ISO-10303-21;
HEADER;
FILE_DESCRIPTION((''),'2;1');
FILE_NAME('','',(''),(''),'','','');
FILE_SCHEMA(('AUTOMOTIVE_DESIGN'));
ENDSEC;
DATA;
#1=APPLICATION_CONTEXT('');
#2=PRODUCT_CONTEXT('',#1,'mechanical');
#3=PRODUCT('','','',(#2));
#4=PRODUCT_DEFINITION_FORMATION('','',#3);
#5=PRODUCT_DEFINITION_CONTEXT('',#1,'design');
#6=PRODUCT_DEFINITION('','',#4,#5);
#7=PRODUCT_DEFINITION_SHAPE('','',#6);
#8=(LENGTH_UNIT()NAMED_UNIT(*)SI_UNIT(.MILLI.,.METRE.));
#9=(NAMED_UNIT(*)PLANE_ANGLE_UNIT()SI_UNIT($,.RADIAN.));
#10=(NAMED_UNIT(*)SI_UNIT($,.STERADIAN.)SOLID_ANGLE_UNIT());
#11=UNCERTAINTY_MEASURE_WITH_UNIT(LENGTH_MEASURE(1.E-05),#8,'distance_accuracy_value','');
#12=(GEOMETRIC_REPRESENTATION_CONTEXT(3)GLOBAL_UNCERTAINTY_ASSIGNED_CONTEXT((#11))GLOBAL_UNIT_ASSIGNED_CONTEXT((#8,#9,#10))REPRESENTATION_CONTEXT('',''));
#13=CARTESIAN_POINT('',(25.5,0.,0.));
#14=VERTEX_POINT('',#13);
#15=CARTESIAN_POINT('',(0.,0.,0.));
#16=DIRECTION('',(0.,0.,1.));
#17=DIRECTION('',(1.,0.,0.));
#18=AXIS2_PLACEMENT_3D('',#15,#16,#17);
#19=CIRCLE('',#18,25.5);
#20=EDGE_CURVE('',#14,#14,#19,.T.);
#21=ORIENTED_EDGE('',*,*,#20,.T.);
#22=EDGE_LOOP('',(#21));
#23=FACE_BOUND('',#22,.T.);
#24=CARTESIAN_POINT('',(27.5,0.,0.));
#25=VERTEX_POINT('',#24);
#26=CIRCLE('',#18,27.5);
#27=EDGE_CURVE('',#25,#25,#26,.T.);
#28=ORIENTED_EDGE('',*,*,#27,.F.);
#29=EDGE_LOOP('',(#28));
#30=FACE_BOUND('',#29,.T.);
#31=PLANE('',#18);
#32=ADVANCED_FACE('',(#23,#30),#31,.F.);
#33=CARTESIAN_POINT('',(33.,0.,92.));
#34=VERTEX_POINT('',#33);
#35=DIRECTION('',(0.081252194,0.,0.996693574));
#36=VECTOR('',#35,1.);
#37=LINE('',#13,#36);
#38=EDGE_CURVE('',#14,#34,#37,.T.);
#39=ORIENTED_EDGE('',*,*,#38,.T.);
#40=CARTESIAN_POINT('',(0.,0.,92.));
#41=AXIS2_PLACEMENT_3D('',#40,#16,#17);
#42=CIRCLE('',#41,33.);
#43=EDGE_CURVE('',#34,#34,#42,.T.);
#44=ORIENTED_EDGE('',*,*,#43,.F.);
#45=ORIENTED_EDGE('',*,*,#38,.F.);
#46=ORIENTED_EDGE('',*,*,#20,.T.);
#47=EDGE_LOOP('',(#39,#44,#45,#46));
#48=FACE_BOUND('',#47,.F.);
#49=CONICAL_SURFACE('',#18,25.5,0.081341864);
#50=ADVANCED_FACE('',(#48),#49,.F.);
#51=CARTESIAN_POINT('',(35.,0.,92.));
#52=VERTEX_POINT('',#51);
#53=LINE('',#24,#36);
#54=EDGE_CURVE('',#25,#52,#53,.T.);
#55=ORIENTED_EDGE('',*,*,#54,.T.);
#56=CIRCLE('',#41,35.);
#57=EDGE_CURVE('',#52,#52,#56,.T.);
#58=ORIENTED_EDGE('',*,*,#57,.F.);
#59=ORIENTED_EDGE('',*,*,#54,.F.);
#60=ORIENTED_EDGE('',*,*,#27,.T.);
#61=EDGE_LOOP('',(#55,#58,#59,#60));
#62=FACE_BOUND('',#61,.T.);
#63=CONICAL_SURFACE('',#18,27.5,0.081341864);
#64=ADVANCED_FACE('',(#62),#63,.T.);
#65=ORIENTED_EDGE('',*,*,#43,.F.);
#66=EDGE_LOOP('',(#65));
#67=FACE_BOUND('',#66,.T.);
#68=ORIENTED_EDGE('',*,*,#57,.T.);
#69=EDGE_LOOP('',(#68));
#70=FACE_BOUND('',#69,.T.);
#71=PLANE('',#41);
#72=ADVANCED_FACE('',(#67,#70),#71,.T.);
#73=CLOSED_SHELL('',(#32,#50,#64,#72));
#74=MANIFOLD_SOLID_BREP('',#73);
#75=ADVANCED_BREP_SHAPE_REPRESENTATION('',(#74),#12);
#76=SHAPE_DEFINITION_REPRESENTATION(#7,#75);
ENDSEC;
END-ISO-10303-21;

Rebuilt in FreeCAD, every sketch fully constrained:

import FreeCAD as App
import Part
import Sketcher
Q = App.Units.Quantity

doc = App.newDocument("Part")
body = doc.addObject("PartDesign::Body", "Body")

# Sketch on XZ plane
sketch1 = doc.addObject("Sketcher::SketchObject", "Sketch")
body.addObject(sketch1)
sketch1.AttachmentSupport = (doc.XZ_Plane, [""])
sketch1.MapMode = "FlatFace"
sketch1.addGeometry(Part.LineSegment(App.Vector(0, 0, 0), App.Vector(26, 0, 0)), False)
sketch1.addGeometry(Part.LineSegment(App.Vector(26, 0, 0), App.Vector(33, 92, 0)), False)
sketch1.addGeometry(Part.LineSegment(App.Vector(33, 92, 0), App.Vector(0, 92, 0)), False)
sketch1.addGeometry(Part.LineSegment(App.Vector(0, 92, 0), App.Vector(0, 0, 0)), False)
sketch1.addConstraint(Sketcher.Constraint("Coincident", 0, 2, 1, 1))
sketch1.addConstraint(Sketcher.Constraint("Coincident", 1, 2, 2, 1))
sketch1.addConstraint(Sketcher.Constraint("Coincident", 2, 2, 3, 1))
sketch1.addConstraint(Sketcher.Constraint("Coincident", 3, 2, 0, 1))
sketch1.addConstraint(Sketcher.Constraint("Horizontal", 0))
sketch1.addConstraint(Sketcher.Constraint("Horizontal", 2))
sketch1.addConstraint(Sketcher.Constraint("Vertical", 3))
sketch1.addConstraint(Sketcher.Constraint("Coincident", 3, 2, -1, 1))
sketch1.addConstraint(Sketcher.Constraint("DistanceX", 2, 2, 2, 1, Q("33 mm")))
sketch1.addConstraint(Sketcher.Constraint("DistanceY", 3, 2, 3, 1, Q("92 mm")))
sketch1.addConstraint(Sketcher.Constraint("DistanceX", 0, 1, 0, 2, Q("25.5 mm")))
revolution = doc.addObject("PartDesign::Revolution", "Revolution")
body.addObject(revolution)
revolution.Profile = sketch1
revolution.ReferenceAxis = (sketch1, ["V_Axis"])
revolution.Angle = 360
body2 = doc.addObject("PartDesign::Body", "Body001")

# Sketch on XZ plane
sketch2 = doc.addObject("Sketcher::SketchObject", "Sketch001")
body2.addObject(sketch2)
sketch2.AttachmentSupport = (doc.getObject("XZ_Plane001"), [""])
sketch2.MapMode = "FlatFace"
sketch2.addGeometry(Part.LineSegment(App.Vector(0, 0, 0), App.Vector(28, 0, 0)), False)
sketch2.addGeometry(Part.LineSegment(App.Vector(28, 0, 0), App.Vector(35, 92, 0)), False)
sketch2.addGeometry(Part.LineSegment(App.Vector(35, 92, 0), App.Vector(0, 92, 0)), False)
sketch2.addGeometry(Part.LineSegment(App.Vector(0, 92, 0), App.Vector(0, 0, 0)), False)
sketch2.addConstraint(Sketcher.Constraint("Coincident", 0, 2, 1, 1))
sketch2.addConstraint(Sketcher.Constraint("Coincident", 1, 2, 2, 1))
sketch2.addConstraint(Sketcher.Constraint("Coincident", 2, 2, 3, 1))
sketch2.addConstraint(Sketcher.Constraint("Coincident", 3, 2, 0, 1))
sketch2.addConstraint(Sketcher.Constraint("Horizontal", 0))
sketch2.addConstraint(Sketcher.Constraint("Horizontal", 2))
sketch2.addConstraint(Sketcher.Constraint("Vertical", 3))
sketch2.addConstraint(Sketcher.Constraint("Coincident", 3, 2, -1, 1))
sketch2.addConstraint(Sketcher.Constraint("DistanceX", 2, 2, 2, 1, Q("35 mm")))
sketch2.addConstraint(Sketcher.Constraint("DistanceY", 3, 2, 3, 1, Q("92 mm")))
sketch2.addConstraint(Sketcher.Constraint("DistanceX", 0, 1, 0, 2, Q("27.5 mm")))
revolution2 = doc.addObject("PartDesign::Revolution", "Revolution001")
body2.addObject(revolution2)
revolution2.Profile = sketch2
revolution2.ReferenceAxis = (sketch2, ["V_Axis"])
revolution2.Angle = 360
doc.recompute()

boolean = doc.addObject("PartDesign::Boolean", "Boolean")
body2.addObject(boolean)
boolean.Type = "Cut"
boolean.addObjects([body])

doc.recompute()
